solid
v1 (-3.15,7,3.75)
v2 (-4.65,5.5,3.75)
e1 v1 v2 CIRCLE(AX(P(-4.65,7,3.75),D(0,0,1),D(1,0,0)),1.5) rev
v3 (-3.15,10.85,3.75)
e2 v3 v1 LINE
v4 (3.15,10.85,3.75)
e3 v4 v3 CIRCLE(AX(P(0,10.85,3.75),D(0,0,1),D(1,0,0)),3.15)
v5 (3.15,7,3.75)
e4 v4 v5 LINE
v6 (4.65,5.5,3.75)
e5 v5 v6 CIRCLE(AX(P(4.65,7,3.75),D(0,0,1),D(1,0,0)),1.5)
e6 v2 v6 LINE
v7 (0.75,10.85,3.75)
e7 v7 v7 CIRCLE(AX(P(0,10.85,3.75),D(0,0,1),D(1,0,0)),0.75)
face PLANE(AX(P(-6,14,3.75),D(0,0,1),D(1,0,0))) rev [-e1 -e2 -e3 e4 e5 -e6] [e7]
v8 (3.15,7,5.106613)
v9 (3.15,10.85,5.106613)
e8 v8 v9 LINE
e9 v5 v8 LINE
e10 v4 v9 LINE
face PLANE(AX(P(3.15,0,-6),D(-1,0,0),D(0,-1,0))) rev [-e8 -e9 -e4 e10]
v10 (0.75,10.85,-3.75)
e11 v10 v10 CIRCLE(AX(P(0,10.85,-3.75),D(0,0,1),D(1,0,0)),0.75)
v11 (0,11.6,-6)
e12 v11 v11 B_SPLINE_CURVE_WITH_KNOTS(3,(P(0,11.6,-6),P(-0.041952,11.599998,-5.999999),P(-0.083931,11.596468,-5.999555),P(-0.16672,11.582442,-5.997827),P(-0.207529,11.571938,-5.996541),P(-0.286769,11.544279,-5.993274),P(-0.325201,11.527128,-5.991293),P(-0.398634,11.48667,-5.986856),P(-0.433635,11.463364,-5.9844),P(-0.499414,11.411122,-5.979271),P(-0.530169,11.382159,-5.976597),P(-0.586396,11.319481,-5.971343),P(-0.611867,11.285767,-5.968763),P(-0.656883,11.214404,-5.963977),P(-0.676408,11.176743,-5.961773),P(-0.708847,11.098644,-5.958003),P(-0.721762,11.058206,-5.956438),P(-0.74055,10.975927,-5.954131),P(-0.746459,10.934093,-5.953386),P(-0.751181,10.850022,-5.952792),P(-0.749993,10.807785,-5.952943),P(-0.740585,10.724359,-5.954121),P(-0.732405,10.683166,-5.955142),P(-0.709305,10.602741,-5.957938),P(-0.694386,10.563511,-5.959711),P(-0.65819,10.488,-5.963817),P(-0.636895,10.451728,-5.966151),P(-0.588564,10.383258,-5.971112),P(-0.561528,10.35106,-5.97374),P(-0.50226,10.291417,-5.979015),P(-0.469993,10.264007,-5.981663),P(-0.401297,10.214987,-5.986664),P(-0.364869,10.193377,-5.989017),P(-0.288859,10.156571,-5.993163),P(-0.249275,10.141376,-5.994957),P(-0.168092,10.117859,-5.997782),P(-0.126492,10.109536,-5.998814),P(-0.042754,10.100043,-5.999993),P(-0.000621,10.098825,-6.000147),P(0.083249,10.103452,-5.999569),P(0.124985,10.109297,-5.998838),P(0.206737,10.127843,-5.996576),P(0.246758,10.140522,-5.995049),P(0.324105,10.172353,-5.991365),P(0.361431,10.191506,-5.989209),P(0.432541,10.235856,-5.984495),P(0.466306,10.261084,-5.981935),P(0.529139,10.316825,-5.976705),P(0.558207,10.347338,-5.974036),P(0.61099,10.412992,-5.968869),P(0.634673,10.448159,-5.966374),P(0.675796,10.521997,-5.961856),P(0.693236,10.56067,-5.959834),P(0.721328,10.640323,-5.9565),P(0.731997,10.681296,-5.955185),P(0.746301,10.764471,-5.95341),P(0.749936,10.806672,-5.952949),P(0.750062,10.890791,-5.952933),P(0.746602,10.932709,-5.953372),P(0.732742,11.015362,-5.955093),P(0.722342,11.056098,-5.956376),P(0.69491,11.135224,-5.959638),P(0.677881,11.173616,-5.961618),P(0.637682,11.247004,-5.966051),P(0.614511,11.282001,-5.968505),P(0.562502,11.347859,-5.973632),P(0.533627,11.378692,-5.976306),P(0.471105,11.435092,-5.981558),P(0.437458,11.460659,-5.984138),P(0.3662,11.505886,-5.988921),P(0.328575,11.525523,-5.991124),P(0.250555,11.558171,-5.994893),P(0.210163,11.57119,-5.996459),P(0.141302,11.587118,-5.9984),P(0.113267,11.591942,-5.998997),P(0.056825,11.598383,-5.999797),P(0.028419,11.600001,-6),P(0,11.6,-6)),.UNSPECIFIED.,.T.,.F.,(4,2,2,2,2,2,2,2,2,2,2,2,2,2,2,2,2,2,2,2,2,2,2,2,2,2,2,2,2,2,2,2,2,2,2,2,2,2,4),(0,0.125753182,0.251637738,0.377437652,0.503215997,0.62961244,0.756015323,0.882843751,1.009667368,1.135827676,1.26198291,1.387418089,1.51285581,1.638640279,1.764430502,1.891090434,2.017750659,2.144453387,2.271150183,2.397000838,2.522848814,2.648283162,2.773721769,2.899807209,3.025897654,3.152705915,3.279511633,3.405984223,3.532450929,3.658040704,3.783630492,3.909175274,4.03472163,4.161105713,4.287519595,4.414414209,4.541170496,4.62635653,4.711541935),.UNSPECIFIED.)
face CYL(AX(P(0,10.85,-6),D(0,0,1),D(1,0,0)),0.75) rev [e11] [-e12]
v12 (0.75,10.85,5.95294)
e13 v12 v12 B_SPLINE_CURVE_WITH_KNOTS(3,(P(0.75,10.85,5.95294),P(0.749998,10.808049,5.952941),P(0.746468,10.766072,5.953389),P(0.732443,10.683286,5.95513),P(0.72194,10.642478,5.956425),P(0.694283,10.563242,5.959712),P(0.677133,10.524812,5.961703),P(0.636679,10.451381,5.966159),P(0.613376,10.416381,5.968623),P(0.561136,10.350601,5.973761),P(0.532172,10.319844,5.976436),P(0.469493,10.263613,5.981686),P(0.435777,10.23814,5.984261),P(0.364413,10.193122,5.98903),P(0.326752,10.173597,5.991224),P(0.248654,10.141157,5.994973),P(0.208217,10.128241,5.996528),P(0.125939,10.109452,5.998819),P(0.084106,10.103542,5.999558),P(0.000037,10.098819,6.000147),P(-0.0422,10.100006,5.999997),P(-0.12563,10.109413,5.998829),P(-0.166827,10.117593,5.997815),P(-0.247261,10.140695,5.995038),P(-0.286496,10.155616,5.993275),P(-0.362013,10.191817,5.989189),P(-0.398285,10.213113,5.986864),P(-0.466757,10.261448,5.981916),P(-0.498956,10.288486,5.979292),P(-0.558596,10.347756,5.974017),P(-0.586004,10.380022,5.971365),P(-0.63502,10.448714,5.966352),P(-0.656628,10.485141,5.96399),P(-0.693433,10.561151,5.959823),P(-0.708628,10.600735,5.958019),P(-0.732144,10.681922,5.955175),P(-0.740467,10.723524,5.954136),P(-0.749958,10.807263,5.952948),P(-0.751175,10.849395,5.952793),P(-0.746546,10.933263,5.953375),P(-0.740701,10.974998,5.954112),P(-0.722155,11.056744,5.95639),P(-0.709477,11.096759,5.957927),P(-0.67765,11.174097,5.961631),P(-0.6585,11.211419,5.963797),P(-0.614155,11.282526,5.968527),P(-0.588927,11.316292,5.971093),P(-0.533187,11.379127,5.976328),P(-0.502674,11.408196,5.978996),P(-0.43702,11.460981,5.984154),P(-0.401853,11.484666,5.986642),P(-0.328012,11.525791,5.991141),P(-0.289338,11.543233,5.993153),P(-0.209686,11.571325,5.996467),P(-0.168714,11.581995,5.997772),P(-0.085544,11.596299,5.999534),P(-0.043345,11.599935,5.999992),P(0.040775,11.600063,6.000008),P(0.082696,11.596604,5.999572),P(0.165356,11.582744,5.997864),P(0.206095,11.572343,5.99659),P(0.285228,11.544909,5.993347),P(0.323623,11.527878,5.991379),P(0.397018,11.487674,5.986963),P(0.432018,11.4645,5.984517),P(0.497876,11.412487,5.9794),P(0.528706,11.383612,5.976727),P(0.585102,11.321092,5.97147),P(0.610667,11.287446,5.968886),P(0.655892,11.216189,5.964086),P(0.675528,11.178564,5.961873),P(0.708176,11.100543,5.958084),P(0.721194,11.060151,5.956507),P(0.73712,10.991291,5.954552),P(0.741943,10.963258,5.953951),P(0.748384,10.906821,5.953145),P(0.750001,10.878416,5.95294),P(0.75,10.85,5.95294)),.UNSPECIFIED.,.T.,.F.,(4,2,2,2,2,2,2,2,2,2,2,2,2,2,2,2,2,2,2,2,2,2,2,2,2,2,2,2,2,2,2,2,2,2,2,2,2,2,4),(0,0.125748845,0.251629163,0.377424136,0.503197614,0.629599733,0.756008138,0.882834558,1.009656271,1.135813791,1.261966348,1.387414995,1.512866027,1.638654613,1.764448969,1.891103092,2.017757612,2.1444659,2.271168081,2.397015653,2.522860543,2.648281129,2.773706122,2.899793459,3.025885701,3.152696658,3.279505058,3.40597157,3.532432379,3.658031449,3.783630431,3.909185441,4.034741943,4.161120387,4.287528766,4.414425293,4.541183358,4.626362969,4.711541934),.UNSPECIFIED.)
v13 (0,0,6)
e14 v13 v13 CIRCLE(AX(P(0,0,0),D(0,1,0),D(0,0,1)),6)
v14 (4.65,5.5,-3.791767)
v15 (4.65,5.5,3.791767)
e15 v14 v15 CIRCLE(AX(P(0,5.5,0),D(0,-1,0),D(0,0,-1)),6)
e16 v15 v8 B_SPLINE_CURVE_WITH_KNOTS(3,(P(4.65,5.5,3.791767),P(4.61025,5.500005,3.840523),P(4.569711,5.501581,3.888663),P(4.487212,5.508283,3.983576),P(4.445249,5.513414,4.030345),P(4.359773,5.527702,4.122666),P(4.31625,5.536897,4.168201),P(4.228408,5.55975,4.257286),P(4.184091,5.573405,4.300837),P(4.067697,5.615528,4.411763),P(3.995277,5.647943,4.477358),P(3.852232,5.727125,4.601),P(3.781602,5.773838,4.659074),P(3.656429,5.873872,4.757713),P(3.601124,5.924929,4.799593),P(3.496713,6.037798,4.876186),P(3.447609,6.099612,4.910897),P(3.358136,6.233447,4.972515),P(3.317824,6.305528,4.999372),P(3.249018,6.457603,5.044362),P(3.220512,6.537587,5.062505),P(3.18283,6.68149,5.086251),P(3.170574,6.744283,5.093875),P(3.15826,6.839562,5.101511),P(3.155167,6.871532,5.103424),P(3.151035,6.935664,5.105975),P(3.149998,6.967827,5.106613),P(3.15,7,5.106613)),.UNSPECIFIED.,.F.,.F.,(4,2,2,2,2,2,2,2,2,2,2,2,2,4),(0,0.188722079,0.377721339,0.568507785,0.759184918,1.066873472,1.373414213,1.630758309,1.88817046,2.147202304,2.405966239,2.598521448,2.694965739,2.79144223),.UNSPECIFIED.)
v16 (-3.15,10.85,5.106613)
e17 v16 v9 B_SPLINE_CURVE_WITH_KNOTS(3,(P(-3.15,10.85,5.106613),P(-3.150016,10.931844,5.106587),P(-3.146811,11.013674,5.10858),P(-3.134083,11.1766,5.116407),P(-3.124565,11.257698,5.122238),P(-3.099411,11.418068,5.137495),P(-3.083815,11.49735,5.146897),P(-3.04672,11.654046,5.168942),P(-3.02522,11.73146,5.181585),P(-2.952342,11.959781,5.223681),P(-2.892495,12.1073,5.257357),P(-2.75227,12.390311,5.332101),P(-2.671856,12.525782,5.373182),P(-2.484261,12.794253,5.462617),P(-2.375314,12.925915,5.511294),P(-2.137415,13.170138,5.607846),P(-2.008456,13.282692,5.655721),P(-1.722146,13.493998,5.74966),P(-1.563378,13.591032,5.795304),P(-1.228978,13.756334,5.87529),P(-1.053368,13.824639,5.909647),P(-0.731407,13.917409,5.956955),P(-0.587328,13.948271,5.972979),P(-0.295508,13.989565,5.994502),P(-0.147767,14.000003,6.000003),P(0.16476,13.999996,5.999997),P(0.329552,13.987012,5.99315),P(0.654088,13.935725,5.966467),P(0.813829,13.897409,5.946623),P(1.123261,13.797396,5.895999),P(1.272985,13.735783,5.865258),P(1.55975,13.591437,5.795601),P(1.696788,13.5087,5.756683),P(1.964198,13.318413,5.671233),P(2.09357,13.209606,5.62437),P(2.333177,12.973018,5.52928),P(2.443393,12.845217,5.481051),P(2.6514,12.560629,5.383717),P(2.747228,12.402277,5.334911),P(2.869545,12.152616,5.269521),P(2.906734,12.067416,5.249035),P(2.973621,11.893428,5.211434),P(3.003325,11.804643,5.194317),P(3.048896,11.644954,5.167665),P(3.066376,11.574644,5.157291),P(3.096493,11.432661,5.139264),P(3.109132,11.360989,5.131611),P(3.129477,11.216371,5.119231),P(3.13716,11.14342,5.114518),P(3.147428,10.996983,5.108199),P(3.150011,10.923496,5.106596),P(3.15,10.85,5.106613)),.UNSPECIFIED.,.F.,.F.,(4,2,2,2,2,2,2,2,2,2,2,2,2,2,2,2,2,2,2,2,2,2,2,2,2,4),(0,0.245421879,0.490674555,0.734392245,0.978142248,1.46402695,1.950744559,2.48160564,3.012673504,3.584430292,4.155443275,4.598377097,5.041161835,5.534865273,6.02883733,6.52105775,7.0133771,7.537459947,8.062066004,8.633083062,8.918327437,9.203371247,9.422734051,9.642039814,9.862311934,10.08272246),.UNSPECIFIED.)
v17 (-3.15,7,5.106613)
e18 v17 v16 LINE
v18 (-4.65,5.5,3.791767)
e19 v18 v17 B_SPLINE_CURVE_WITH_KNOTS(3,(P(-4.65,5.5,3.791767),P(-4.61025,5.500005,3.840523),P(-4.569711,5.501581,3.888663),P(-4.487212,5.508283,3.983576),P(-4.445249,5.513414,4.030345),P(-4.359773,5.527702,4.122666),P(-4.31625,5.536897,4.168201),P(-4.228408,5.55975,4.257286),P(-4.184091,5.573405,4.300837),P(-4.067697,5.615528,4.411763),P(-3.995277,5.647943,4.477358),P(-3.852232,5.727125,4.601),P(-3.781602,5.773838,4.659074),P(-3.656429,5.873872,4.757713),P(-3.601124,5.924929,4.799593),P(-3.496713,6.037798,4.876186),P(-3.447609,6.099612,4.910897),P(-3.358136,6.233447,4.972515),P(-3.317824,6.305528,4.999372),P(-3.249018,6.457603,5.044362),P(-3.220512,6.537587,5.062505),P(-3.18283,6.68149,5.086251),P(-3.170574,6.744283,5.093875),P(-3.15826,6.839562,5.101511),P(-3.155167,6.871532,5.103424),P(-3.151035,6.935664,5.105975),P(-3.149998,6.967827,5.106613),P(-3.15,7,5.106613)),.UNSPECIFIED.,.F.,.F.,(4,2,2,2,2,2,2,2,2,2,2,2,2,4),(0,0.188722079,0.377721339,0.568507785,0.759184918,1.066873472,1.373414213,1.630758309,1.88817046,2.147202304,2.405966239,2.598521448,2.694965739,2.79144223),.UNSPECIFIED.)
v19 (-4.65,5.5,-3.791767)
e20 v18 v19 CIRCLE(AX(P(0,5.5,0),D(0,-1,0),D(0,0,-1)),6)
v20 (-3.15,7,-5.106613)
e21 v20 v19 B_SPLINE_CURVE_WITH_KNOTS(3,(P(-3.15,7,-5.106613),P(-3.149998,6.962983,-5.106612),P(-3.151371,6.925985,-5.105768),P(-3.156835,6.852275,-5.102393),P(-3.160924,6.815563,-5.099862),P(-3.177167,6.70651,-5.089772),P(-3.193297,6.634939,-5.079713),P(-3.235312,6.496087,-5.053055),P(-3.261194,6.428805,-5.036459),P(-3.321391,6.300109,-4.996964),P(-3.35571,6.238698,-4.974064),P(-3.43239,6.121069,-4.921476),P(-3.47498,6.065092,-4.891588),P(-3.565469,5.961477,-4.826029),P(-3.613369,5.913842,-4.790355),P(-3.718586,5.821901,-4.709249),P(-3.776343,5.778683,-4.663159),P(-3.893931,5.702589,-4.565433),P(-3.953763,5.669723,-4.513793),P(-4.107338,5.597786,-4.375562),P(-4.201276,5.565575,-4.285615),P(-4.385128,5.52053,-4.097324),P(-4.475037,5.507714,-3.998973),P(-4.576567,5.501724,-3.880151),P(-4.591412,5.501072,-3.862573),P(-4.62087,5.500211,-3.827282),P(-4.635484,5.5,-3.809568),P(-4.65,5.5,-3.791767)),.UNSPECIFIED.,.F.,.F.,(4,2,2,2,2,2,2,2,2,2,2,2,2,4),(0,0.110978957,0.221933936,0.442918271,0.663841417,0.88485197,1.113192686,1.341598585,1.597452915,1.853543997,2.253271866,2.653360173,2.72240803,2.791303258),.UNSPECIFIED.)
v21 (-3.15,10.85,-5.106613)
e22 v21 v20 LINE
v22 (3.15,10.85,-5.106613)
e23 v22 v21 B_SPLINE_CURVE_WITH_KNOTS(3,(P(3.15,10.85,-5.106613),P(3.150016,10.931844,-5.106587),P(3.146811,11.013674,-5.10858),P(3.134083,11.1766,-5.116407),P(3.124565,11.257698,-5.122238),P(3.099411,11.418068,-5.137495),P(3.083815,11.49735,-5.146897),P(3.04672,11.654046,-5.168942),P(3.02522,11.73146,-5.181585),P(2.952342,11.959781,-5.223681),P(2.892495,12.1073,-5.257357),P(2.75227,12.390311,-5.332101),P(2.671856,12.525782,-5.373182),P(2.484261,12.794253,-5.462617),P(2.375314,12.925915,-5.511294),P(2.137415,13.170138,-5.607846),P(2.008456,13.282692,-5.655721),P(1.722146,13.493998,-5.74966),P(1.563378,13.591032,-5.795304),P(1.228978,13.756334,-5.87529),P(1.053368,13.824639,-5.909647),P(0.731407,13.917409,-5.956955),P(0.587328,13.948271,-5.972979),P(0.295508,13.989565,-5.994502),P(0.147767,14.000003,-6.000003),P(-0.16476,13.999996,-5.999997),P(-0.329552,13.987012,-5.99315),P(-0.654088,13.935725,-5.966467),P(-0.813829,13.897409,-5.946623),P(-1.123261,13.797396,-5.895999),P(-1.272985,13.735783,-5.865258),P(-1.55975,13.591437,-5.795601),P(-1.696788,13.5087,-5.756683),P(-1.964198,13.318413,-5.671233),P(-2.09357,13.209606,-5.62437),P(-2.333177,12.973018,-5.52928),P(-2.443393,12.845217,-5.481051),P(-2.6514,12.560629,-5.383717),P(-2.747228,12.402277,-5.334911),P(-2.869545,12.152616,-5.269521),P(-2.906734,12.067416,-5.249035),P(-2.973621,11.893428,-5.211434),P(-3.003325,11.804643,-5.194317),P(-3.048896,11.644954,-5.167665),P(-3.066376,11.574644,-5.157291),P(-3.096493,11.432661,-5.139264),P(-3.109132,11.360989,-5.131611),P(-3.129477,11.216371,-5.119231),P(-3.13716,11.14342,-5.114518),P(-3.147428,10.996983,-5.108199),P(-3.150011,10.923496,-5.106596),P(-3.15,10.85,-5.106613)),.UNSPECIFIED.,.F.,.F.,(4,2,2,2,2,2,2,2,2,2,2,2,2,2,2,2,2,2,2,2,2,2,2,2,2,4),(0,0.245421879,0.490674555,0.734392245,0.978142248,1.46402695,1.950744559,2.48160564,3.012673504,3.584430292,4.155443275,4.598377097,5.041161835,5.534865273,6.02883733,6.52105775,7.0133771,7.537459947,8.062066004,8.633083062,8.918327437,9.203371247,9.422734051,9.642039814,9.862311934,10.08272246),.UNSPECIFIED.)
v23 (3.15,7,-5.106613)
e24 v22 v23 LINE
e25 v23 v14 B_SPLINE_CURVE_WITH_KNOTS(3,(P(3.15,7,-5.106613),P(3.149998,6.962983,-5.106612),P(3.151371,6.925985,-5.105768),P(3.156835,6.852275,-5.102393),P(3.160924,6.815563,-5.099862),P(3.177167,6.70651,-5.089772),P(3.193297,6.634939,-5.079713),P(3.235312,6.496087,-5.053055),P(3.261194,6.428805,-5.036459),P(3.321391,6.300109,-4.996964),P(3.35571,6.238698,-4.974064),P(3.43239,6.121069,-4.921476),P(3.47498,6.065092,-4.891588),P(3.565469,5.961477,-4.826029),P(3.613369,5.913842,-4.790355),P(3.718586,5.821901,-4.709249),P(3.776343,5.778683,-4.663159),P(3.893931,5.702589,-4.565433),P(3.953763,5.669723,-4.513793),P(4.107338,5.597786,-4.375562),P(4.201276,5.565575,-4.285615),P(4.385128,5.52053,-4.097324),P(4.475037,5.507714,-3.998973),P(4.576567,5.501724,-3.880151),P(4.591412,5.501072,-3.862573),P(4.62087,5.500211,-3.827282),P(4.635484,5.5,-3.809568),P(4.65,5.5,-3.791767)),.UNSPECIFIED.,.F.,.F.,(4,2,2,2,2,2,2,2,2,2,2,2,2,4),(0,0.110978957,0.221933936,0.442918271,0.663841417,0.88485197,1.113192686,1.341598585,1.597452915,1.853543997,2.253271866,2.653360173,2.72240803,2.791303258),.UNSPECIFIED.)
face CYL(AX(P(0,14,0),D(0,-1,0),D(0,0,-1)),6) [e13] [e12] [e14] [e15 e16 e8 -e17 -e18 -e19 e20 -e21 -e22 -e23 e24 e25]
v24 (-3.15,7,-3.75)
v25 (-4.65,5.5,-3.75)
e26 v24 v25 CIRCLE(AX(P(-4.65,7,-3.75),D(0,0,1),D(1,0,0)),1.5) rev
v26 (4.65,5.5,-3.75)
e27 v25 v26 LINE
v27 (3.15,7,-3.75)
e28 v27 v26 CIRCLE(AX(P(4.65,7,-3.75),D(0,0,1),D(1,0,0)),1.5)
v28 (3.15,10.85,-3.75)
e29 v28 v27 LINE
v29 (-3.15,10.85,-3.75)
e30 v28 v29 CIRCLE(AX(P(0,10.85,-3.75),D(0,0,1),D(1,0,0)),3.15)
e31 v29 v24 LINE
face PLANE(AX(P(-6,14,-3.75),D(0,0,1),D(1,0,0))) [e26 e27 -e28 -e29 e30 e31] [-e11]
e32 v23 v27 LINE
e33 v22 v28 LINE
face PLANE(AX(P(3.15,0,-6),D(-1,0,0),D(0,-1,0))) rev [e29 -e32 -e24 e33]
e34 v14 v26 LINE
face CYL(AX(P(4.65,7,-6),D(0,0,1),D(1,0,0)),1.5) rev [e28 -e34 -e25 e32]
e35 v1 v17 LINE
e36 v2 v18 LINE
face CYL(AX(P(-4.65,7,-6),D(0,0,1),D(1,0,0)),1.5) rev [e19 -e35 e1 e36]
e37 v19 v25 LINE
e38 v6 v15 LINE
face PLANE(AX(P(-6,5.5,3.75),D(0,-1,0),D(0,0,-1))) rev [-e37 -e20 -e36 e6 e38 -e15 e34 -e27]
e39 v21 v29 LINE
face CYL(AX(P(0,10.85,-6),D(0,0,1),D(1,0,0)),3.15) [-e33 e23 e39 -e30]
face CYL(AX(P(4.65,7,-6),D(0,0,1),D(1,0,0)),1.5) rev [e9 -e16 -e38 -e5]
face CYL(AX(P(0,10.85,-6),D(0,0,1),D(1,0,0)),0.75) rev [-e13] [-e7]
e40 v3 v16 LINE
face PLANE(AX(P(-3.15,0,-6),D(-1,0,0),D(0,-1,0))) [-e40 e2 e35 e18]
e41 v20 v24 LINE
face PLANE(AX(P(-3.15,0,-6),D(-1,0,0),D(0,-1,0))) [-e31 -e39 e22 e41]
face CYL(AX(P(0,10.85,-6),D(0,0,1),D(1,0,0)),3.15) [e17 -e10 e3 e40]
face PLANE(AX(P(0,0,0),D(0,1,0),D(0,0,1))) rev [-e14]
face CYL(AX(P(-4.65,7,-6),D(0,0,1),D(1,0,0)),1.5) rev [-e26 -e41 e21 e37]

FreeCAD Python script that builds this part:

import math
import FreeCAD as App
import Part
import Sketcher
from FreeCAD import Vector
Q = App.Units.Quantity


def add_polygon(sketch, points):
    """Adds a closed chain of lines whose ends are joined by coincident constraints."""
    first, n = sketch.GeometryCount, len(points)
    for a, b in zip(points, points[1:] + points[:1]):
        sketch.addGeometry(Part.LineSegment(App.Vector(*a, 0), App.Vector(*b, 0)), False)
    for i in range(n):
        sketch.addConstraint(Sketcher.Constraint("Coincident", first + i, 2, first + (i + 1) % n, 1))

doc = App.newDocument("Part")
body = doc.addObject("PartDesign::Body", "Body")

# Sketch on XZ plane
sketch1 = doc.addObject("Sketcher::SketchObject", "Sketch")
body.addObject(sketch1)
sketch1.AttachmentSupport = (doc.XZ_Plane, [""])
sketch1.MapMode = "FlatFace"
sketch1.addGeometry(Part.Circle(Vector(0, 0, 0), Vector(0, 0, 1), 6), False)
sketch1.addConstraint([
    Sketcher.Constraint("Coincident", 0, 3, -1, 1),
    Sketcher.Constraint("Diameter", 0, Q("12 mm")),
])
pad1 = doc.addObject("PartDesign::Pad", "Pad")
body.addObject(pad1)
pad1.Profile = sketch1
pad1.Length = 14
pad1.Reversed = True

# Sketch on YZ plane
sketch2 = doc.addObject("Sketcher::SketchObject", "Sketch001")
body.addObject(sketch2)
sketch2.AttachmentSupport = (doc.YZ_Plane, [""])
sketch2.MapMode = "FlatFace"
add_polygon(sketch2, [(14, 4), (6, 4), (6, -4), (14, -4)])  # lines 0-3
sketch2.addConstraint([
    Sketcher.Constraint("Horizontal", 0),
    Sketcher.Constraint("Vertical", 1),
    Sketcher.Constraint("Horizontal", 2),
    Sketcher.Constraint("Vertical", 3),
    Sketcher.Constraint("DistanceX", 0, 2, 0, 1, Q("8.5 mm")),
    Sketcher.Constraint("DistanceY", 1, 2, 1, 1, Q("7.5 mm")),
    Sketcher.Constraint("DistanceX", -1, 1, 2, 2, Q("14 mm")),
    Sketcher.Constraint("DistanceY", -1, 1, 0, 2, Q("3.75 mm")),
])
pocket1 = doc.addObject("PartDesign::Pocket", "Pocket")
body.addObject(pocket1)
pocket1.Profile = sketch2
pocket1.Type = "ThroughAll"
pocket1.Midplane = True

# Sketch on XY plane
sketch3 = doc.addObject("Sketcher::SketchObject", "Sketch002")
body.addObject(sketch3)
sketch3.AttachmentSupport = (doc.XY_Plane, [""])
sketch3.MapMode = "FlatFace"
sketch3.addGeometry([
    Part.LineSegment(Vector(-3.15, 7, 0), Vector(-3.15, 10.85, 0)),  # 0
    Part.ArcOfCircle(Part.Circle(Vector(0, 10.85, 0), Vector(0, 0, 1), 3.15), math.radians(90), math.radians(180)),  # 1
    Part.LineSegment(Vector(0, 14, 0), Vector(-4.684, 14, 0)),  # 2
    Part.LineSegment(Vector(-4.684, 14, 0), Vector(-4.684, 5.5, 0)),  # 3
    Part.LineSegment(Vector(-4.684, 5.5, 0), Vector(-4.65, 5.5, 0)),  # 4
    Part.ArcOfCircle(Part.Circle(Vector(-4.65, 7, 0), Vector(0, 0, 1), 1.5), math.radians(-90), math.radians(0)),  # 5
    Part.LineSegment(Vector(4.684, 14, 0), Vector(0, 14, 0)),  # 6
    Part.ArcOfCircle(Part.Circle(Vector(0, 10.85, 0), Vector(0, 0, 1), 3.15), math.radians(0), math.radians(90)),  # 7
    Part.LineSegment(Vector(3.15, 10.85, 0), Vector(3.15, 7, 0)),  # 8
    Part.ArcOfCircle(Part.Circle(Vector(4.65, 7, 0), Vector(0, 0, 1), 1.5), math.radians(180), math.radians(270)),  # 9
    Part.LineSegment(Vector(4.65, 5.5, 0), Vector(4.684, 5.5, 0)),  # 10
    Part.LineSegment(Vector(4.684, 5.5, 0), Vector(4.684, 14, 0)),  # 11
    Part.Circle(Vector(0, 10.85, 0), Vector(0, 0, 1), 0.75),  # 12
], False)
sketch3.addConstraint([
    Sketcher.Constraint("Tangent", 0, 2, 1, 2),
    Sketcher.Constraint("Tangent", 1, 1, 2, 1),
    Sketcher.Constraint("Coincident", 2, 2, 3, 1),
    Sketcher.Constraint("Coincident", 3, 2, 4, 1),
    Sketcher.Constraint("Tangent", 4, 2, 5, 1),
    Sketcher.Constraint("Tangent", 5, 2, 0, 1),
    Sketcher.Constraint("Tangent", 6, 2, 7, 2),
    Sketcher.Constraint("Tangent", 7, 1, 8, 1),
    Sketcher.Constraint("Tangent", 8, 2, 9, 1),
    Sketcher.Constraint("Tangent", 9, 2, 10, 1),
    Sketcher.Constraint("Coincident", 10, 2, 11, 1),
    Sketcher.Constraint("Coincident", 11, 2, 6, 1),
    Sketcher.Constraint("Vertical", 0),
    Sketcher.Constraint("Horizontal", 2),
    Sketcher.Constraint("Vertical", 3),
    Sketcher.Constraint("Horizontal", 4),
    Sketcher.Constraint("Horizontal", 6),
    Sketcher.Constraint("Vertical", 8),
    Sketcher.Constraint("Horizontal", 10),
    Sketcher.Constraint("Vertical", 11),
    Sketcher.Constraint("Coincident", 7, 3, 1, 3),
    Sketcher.Constraint("Coincident", 12, 3, 1, 3),
    Sketcher.Constraint("Equal", 1, 7),
    Sketcher.Constraint("Equal", 5, 9),
    Sketcher.Constraint("Symmetric", 5, 3, 9, 3, -2),
    Sketcher.Constraint("Equal", 2, 6),
    Sketcher.Constraint("Diameter", 12, Q("1.5 mm")),
    Sketcher.Constraint("Radius", 5, Q("1.5 mm")),
    Sketcher.Constraint("Radius", 1, Q("3.15 mm")),
    Sketcher.Constraint("DistanceY", 3, 2, 3, 1, Q("8.5 mm")),
    Sketcher.Constraint("DistanceY", -1, 1, 5, 3, Q("7 mm")),
    Sketcher.Constraint("DistanceX", 2, 2, 2, 1, Q("4.683748 mm")),
])
pocket2 = doc.addObject("PartDesign::Pocket", "Pocket001")
body.addObject(pocket2)
pocket2.Profile = sketch3
pocket2.Type = "ThroughAll"
pocket2.Midplane = True

doc.recompute()
